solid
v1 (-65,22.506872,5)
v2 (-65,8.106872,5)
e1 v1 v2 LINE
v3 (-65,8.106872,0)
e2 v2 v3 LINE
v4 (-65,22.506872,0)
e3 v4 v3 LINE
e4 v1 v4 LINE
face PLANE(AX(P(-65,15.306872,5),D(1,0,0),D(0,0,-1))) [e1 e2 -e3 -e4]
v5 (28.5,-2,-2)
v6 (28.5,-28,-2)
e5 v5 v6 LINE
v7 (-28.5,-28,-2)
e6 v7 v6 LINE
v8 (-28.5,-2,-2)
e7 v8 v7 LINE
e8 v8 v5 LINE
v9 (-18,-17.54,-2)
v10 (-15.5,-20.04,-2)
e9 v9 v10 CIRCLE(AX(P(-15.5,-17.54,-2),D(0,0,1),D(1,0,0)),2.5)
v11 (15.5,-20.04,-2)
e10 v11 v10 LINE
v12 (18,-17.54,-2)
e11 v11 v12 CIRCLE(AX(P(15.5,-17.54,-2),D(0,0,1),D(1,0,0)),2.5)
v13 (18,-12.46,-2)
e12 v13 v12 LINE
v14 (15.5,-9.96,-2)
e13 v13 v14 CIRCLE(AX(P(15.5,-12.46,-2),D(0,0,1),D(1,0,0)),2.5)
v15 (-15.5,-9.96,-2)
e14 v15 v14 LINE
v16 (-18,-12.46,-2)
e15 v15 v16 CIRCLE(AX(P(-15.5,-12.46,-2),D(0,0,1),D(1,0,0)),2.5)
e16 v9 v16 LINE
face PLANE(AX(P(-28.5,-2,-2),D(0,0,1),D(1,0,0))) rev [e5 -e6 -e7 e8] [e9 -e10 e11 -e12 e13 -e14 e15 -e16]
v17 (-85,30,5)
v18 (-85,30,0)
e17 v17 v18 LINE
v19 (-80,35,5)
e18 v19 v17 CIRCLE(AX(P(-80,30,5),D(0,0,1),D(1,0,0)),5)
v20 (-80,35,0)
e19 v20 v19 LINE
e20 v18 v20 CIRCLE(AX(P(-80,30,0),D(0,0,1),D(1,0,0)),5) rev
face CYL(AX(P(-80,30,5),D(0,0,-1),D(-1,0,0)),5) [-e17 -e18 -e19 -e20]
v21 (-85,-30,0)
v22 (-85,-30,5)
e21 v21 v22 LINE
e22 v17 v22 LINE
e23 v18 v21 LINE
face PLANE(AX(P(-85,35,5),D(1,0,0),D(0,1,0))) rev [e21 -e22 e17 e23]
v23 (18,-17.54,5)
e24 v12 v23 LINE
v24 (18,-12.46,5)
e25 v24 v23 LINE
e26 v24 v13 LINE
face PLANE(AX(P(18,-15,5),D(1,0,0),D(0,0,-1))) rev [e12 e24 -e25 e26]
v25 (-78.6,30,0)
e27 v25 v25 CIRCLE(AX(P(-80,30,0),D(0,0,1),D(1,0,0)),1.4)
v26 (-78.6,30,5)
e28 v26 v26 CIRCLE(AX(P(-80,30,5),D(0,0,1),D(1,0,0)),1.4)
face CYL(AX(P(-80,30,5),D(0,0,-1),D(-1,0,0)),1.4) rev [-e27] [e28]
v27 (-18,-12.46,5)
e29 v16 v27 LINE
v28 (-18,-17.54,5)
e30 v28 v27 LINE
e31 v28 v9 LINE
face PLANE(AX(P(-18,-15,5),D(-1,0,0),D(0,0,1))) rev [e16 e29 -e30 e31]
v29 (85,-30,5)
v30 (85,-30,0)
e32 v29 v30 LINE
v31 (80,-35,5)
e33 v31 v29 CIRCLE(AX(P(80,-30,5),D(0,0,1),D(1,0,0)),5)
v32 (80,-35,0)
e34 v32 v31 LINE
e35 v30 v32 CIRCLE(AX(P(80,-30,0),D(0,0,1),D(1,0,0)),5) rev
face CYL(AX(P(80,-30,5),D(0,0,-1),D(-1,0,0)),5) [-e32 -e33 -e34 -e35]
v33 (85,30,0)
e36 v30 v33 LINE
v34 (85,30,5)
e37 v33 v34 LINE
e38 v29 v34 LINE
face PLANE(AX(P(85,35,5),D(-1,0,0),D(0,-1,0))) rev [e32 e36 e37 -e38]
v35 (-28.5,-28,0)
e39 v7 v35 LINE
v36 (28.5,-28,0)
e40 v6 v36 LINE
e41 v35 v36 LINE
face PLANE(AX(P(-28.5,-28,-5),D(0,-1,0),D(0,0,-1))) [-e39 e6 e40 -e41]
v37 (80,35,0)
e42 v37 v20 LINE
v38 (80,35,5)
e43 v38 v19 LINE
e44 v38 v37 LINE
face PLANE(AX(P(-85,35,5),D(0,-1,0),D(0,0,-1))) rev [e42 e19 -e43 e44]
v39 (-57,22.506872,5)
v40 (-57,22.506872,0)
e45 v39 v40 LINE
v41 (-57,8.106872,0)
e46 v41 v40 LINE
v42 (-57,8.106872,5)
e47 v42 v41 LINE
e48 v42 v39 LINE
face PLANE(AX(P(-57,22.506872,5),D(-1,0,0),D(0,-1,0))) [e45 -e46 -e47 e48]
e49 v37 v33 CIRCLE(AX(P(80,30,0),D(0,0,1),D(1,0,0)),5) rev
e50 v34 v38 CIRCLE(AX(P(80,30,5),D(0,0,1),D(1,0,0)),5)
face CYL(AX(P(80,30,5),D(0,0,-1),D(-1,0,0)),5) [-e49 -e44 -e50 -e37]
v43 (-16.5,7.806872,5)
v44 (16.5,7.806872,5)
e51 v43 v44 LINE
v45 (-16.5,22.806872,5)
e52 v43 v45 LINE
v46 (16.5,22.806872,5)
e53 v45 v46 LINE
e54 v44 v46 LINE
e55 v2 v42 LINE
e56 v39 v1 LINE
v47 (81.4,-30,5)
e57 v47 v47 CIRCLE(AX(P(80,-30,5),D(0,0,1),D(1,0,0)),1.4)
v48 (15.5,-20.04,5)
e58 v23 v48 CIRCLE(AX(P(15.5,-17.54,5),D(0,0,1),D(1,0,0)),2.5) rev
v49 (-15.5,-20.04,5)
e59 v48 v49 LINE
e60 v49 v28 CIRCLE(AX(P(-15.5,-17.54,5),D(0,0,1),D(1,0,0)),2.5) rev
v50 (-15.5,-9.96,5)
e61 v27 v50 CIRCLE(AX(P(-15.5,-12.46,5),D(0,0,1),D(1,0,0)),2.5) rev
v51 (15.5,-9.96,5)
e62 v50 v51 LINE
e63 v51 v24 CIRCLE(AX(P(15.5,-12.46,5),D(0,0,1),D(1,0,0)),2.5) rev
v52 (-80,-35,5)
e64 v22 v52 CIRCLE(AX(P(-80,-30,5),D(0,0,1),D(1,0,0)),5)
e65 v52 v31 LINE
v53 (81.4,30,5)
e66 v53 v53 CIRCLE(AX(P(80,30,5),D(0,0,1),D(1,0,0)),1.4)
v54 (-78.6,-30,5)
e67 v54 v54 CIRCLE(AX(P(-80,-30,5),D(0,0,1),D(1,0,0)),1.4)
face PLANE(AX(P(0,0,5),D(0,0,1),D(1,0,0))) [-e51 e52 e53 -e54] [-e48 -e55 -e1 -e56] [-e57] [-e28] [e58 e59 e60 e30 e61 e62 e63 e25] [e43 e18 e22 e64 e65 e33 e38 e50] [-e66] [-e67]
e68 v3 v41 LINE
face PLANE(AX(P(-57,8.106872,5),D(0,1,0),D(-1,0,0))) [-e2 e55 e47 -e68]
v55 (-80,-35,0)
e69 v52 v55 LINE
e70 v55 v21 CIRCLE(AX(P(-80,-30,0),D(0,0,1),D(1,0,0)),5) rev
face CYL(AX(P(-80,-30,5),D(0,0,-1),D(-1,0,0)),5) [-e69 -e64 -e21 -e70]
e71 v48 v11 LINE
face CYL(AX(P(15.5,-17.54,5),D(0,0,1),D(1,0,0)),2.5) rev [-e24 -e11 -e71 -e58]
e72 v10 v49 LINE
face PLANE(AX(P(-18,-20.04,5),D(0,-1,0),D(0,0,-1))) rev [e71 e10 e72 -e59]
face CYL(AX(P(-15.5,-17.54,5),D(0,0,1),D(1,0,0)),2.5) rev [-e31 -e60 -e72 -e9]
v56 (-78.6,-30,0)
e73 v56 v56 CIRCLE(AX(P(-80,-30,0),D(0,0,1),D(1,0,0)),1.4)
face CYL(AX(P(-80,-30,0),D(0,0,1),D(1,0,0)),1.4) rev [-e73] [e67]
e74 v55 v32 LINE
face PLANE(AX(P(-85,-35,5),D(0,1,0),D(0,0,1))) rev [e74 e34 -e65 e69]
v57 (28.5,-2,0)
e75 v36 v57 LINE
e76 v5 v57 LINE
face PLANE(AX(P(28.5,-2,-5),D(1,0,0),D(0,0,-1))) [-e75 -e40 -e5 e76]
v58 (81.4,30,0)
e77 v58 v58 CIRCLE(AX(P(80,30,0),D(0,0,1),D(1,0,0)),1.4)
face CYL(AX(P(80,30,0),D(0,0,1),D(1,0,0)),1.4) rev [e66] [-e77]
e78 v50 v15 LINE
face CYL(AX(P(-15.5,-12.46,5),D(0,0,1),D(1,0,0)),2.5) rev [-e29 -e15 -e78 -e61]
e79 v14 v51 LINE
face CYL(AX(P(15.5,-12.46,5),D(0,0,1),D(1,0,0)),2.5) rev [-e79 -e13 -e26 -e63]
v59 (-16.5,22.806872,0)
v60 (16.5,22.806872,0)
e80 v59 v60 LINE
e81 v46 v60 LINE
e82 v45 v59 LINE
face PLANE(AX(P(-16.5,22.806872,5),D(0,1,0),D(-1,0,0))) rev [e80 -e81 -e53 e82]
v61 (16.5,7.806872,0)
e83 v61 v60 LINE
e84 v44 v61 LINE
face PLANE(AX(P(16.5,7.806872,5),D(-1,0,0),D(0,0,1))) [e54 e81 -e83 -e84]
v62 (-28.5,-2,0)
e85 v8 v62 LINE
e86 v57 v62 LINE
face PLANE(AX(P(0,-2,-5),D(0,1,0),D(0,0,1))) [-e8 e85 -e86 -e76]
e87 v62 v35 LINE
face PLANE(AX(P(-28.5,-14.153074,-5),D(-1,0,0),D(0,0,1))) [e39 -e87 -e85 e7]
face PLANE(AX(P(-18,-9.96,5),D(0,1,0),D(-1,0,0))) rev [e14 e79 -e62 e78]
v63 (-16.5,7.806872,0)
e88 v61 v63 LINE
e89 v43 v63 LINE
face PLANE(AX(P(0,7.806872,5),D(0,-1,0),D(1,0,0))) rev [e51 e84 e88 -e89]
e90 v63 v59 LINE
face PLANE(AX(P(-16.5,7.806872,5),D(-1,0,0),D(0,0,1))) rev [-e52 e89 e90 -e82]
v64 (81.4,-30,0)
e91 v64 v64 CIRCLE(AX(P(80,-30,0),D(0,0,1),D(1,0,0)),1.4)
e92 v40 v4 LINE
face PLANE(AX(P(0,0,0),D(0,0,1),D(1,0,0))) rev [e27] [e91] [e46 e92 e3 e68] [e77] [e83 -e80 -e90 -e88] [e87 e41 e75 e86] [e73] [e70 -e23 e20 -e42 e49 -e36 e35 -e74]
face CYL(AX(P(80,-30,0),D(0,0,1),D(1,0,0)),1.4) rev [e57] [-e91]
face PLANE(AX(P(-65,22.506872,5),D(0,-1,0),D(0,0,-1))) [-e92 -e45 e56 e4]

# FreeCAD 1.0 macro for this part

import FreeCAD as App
import Part
import Sketcher


def edges_at(feature, points):
    """Names of the edges that pass closest to the given points."""
    edges = feature.Shape.Edges
    near = lambda p: min(range(len(edges)), key=lambda i: edges[i].distToShape(Part.Vertex(*p))[0])
    return sorted({f"Edge{near(p) + 1}" for p in points})

doc = App.newDocument("Part")
body = doc.addObject("PartDesign::Body", "Body")

sketch1 = body.newObject("Sketcher::SketchObject", "Sketch")
sketch1.AttachmentSupport = (doc.getObject("XY_Plane"), [""])
sketch1.MapMode = "FlatFace"
sketch1.addGeometry([
    Part.LineSegment(App.Vector(-85, 35, 0), App.Vector(-85, -35, 0)),
    Part.LineSegment(App.Vector(-85, -35, 0), App.Vector(85, -35, 0)),
    Part.LineSegment(App.Vector(85, -35, 0), App.Vector(85, 35, 0)),
    Part.LineSegment(App.Vector(85, 35, 0), App.Vector(-85, 35, 0)),
], False)
sketch1.addConstraint([
    Sketcher.Constraint("Coincident", 0, 2, 1, 1),
    Sketcher.Constraint("Coincident", 1, 2, 2, 1),
    Sketcher.Constraint("Coincident", 2, 2, 3, 1),
    Sketcher.Constraint("Coincident", 3, 2, 0, 1),
    Sketcher.Constraint("Vertical", 0),
    Sketcher.Constraint("Horizontal", 1),
    Sketcher.Constraint("Vertical", 2),
    Sketcher.Constraint("Horizontal", 3),
    Sketcher.Constraint("Symmetric", 0, 2, 2, 2, -1, 1),
    Sketcher.Constraint("DistanceX", 1, 1, 1, 2, 170.0),
    Sketcher.Constraint("DistanceY", 0, 2, 0, 1, 70.0),
])
pad1 = body.newObject("PartDesign::Pad", "Pad")
pad1.Profile = sketch1
pad1.Length = 5
doc.recompute()

fillet = body.newObject("PartDesign::Fillet", "Fillet")
fillet.Base = (pad1, edges_at(pad1, [
    (85, -35, 2.5),
    (-85, -35, 2.5),
    (-85, 35, 2.5),
    (85, 35, 2.5),
]))
fillet.Radius = 5

sketch2 = body.newObject("Sketcher::SketchObject", "Sketch001")
sketch2.AttachmentSupport = (doc.getObject("XY_Plane"), [""])
sketch2.MapMode = "FlatFace"
sketch2.addGeometry(Part.Circle(App.Vector(-80, 30, 0), App.Vector(0, 0, 1), 1.4), False)
sketch2.addConstraint([
    Sketcher.Constraint("Diameter", 0, 2.8),
    Sketcher.Constraint("DistanceX", 0, 3, -1, 1, 80.0),
    Sketcher.Constraint("DistanceY", -1, 1, 0, 3, 30.0),
])
pocket1 = body.newObject("PartDesign::Pocket", "Pocket")
pocket1.Profile = sketch2
pocket1.Length = 5
pocket1.Reversed = True

sketch3 = body.newObject("Sketcher::SketchObject", "Sketch002")
sketch3.AttachmentSupport = (doc.getObject("XY_Plane"), [""])
sketch3.MapMode = "FlatFace"
sketch3.AttachmentOffset = App.Placement(App.Vector(0, 0, 5), App.Rotation())
sketch3.addGeometry([
    Part.Circle(App.Vector(-80, -30, 0), App.Vector(0, 0, 1), 1.4),
    Part.Circle(App.Vector(80, 30, 0), App.Vector(0, 0, 1), 1.4),
    Part.Circle(App.Vector(80, -30, 0), App.Vector(0, 0, 1), 1.4),
], False)
sketch3.addConstraint([
    Sketcher.Constraint("Equal", 0, 1),
    Sketcher.Constraint("Equal", 1, 2),
    Sketcher.Constraint("Symmetric", 0, 3, 1, 3, -1, 1),
    Sketcher.Constraint("Symmetric", 0, 3, 2, 3, -2),
    Sketcher.Constraint("Diameter", 0, 2.8),
    Sketcher.Constraint("DistanceX", 0, 3, -1, 1, 80.0),
    Sketcher.Constraint("DistanceY", 0, 3, -1, 1, 30.0),
])
pocket2 = body.newObject("PartDesign::Pocket", "Pocket001")
pocket2.Profile = sketch3
pocket2.Length = 5

sketch4 = body.newObject("Sketcher::SketchObject", "Sketch003")
sketch4.AttachmentSupport = (doc.getObject("XY_Plane"), [""])
sketch4.MapMode = "FlatFace"
sketch4.addGeometry([
    Part.LineSegment(App.Vector(16, 8, 0), App.Vector(16, 23, 0)),
    Part.LineSegment(App.Vector(16, 23, 0), App.Vector(-16, 23, 0)),
    Part.LineSegment(App.Vector(-16, 23, 0), App.Vector(-16, 8, 0)),
    Part.LineSegment(App.Vector(-16, 8, 0), App.Vector(16, 8, 0)),
], False)
sketch4.addConstraint([
    Sketcher.Constraint("Coincident", 0, 2, 1, 1),
    Sketcher.Constraint("Coincident", 1, 2, 2, 1),
    Sketcher.Constraint("Coincident", 2, 2, 3, 1),
    Sketcher.Constraint("Coincident", 3, 2, 0, 1),
    Sketcher.Constraint("Vertical", 0),
    Sketcher.Constraint("Horizontal", 1),
    Sketcher.Constraint("Vertical", 2),
    Sketcher.Constraint("Horizontal", 3),
    Sketcher.Constraint("DistanceX", 1, 2, 1, 1, 33.0),
    Sketcher.Constraint("DistanceY", 0, 1, 0, 2, 15.0),
    Sketcher.Constraint("DistanceX", -1, 1, 0, 2, 16.5),
    Sketcher.Constraint("DistanceY", -1, 1, 0, 2, 22.806872),
])
pocket3 = body.newObject("PartDesign::Pocket", "Pocket002")
pocket3.Profile = sketch4
pocket3.Length = 5
pocket3.Reversed = True

sketch5 = body.newObject("Sketcher::SketchObject", "Sketch004")
sketch5.AttachmentSupport = (doc.getObject("XY_Plane"), [""])
sketch5.MapMode = "FlatFace"
sketch5.addGeometry([
    Part.LineSegment(App.Vector(-65, 23, 0), App.Vector(-65, 8, 0)),
    Part.LineSegment(App.Vector(-65, 8, 0), App.Vector(-57, 8, 0)),
    Part.LineSegment(App.Vector(-57, 8, 0), App.Vector(-57, 23, 0)),
    Part.LineSegment(App.Vector(-57, 23, 0), App.Vector(-65, 23, 0)),
], False)
sketch5.addConstraint([
    Sketcher.Constraint("Coincident", 0, 2, 1, 1),
    Sketcher.Constraint("Coincident", 1, 2, 2, 1),
    Sketcher.Constraint("Coincident", 2, 2, 3, 1),
    Sketcher.Constraint("Coincident", 3, 2, 0, 1),
    Sketcher.Constraint("Vertical", 0),
    Sketcher.Constraint("Horizontal", 1),
    Sketcher.Constraint("Vertical", 2),
    Sketcher.Constraint("Horizontal", 3),
    Sketcher.Constraint("DistanceX", 1, 1, 1, 2, 8.0),
    Sketcher.Constraint("DistanceY", 0, 2, 0, 1, 14.4),
    Sketcher.Constraint("DistanceX", 0, 2, -1, 1, 65.0),
    Sketcher.Constraint("DistanceY", -1, 1, 0, 2, 8.106872),
])
pocket4 = body.newObject("PartDesign::Pocket", "Pocket003")
pocket4.Profile = sketch5
pocket4.Length = 5
pocket4.Reversed = True

sketch6 = body.newObject("Sketcher::SketchObject", "Sketch005")
sketch6.AttachmentSupport = (doc.getObject("XY_Plane"), [""])
sketch6.MapMode = "FlatFace"
sketch6.AttachmentOffset = App.Placement(App.Vector(0, 0, 5), App.Rotation())
sketch6.addGeometry([
    Part.LineSegment(App.Vector(28, -2, 0), App.Vector(-28, -2, 0)),
    Part.LineSegment(App.Vector(-28, -2, 0), App.Vector(-28, -28, 0)),
    Part.LineSegment(App.Vector(-28, -28, 0), App.Vector(28, -28, 0)),
    Part.LineSegment(App.Vector(28, -28, 0), App.Vector(28, -2, 0)),
], False)
sketch6.addConstraint([
    Sketcher.Constraint("Coincident", 0, 2, 1, 1),
    Sketcher.Constraint("Coincident", 1, 2, 2, 1),
    Sketcher.Constraint("Coincident", 2, 2, 3, 1),
    Sketcher.Constraint("Coincident", 3, 2, 0, 1),
    Sketcher.Constraint("Horizontal", 0),
    Sketcher.Constraint("Vertical", 1),
    Sketcher.Constraint("Horizontal", 2),
    Sketcher.Constraint("Vertical", 3),
    Sketcher.Constraint("DistanceX", 0, 2, 0, 1, 57.0),
    Sketcher.Constraint("DistanceY", 1, 2, 1, 1, 26.0),
    Sketcher.Constraint("DistanceY", 0, 2, -1, 1, 2.0),
    Sketcher.Constraint("DistanceX", 0, 2, -1, 1, 28.5),
])
pad2 = body.newObject("PartDesign::Pad", "Pad001")
pad2.Profile = sketch6
pad2.Length = 10
pad2.Reversed = True

sketch7 = body.newObject("Sketcher::SketchObject", "Sketch006")
sketch7.AttachmentSupport = (doc.getObject("XY_Plane"), [""])
sketch7.MapMode = "FlatFace"
sketch7.AttachmentOffset = App.Placement(App.Vector(0, 0, -5), App.Rotation())
sketch7.addGeometry([
    Part.LineSegment(App.Vector(18, -20, 0), App.Vector(-18, -20, 0)),
    Part.LineSegment(App.Vector(-18, -20, 0), App.Vector(-18, -10, 0)),
    Part.LineSegment(App.Vector(-18, -10, 0), App.Vector(18, -10, 0)),
    Part.LineSegment(App.Vector(18, -10, 0), App.Vector(18, -20, 0)),
], False)
sketch7.addConstraint([
    Sketcher.Constraint("Coincident", 0, 2, 1, 1),
    Sketcher.Constraint("Coincident", 1, 2, 2, 1),
    Sketcher.Constraint("Coincident", 2, 2, 3, 1),
    Sketcher.Constraint("Coincident", 3, 2, 0, 1),
    Sketcher.Constraint("Horizontal", 0),
    Sketcher.Constraint("Vertical", 1),
    Sketcher.Constraint("Horizontal", 2),
    Sketcher.Constraint("Vertical", 3),
    Sketcher.Constraint("DistanceX", 0, 2, 0, 1, 36.0),
    Sketcher.Constraint("DistanceX", 0, 2, -1, 1, 18.0),
    Sketcher.Constraint("DistanceY", 1, 1, 1, 2, 10.08),
    Sketcher.Constraint("DistanceY", 0, 2, -1, 1, 20.04),
])
pocket5 = body.newObject("PartDesign::Pocket", "Pocket004")
pocket5.Profile = sketch7
pocket5.Length = 10
pocket5.Reversed = True

sketch8 = body.newObject("Sketcher::SketchObject", "Sketch007")
sketch8.AttachmentSupport = (doc.getObject("YZ_Plane"), [""])
sketch8.MapMode = "FlatFace"
sketch8.AttachmentOffset = App.Placement(App.Vector(0, 0, 28.5), App.Rotation())
sketch8.addGeometry([
    Part.LineSegment(App.Vector(-2, -2, 0), App.Vector(-28, -2, 0)),
    Part.LineSegment(App.Vector(-28, -2, 0), App.Vector(-28, -5, 0)),
    Part.LineSegment(App.Vector(-28, -5, 0), App.Vector(-2, -5, 0)),
    Part.LineSegment(App.Vector(-2, -5, 0), App.Vector(-2, -2, 0)),
], False)
sketch8.addConstraint([
    Sketcher.Constraint("Coincident", 0, 2, 1, 1),
    Sketcher.Constraint("Coincident", 1, 2, 2, 1),
    Sketcher.Constraint("Coincident", 2, 2, 3, 1),
    Sketcher.Constraint("Coincident", 3, 2, 0, 1),
    Sketcher.Constraint("Horizontal", 0),
    Sketcher.Constraint("Vertical", 1),
    Sketcher.Constraint("Horizontal", 2),
    Sketcher.Constraint("Vertical", 3),
    Sketcher.Constraint("DistanceX", 0, 2, 0, 1, 26.0),
    Sketcher.Constraint("DistanceY", 1, 2, 1, 1, 3.0),
    Sketcher.Constraint("DistanceX", 0, 2, -1, 1, 28.0),
    Sketcher.Constraint("DistanceY", 0, 2, -1, 1, 2.0),
])
pocket6 = body.newObject("PartDesign::Pocket", "Pocket005")
pocket6.Profile = sketch8
pocket6.Length = 57
doc.recompute()

fillet2 = body.newObject("PartDesign::Fillet", "Fillet001")
fillet2.Base = (pocket6, edges_at(pocket6, [
    (18, -9.96, 1.5),
    (-18, -9.96, 1.5),
    (-18, -20.04, 1.5),
    (18, -20.04, 1.5),
]))
fillet2.Radius = 2.5

doc.recompute()
